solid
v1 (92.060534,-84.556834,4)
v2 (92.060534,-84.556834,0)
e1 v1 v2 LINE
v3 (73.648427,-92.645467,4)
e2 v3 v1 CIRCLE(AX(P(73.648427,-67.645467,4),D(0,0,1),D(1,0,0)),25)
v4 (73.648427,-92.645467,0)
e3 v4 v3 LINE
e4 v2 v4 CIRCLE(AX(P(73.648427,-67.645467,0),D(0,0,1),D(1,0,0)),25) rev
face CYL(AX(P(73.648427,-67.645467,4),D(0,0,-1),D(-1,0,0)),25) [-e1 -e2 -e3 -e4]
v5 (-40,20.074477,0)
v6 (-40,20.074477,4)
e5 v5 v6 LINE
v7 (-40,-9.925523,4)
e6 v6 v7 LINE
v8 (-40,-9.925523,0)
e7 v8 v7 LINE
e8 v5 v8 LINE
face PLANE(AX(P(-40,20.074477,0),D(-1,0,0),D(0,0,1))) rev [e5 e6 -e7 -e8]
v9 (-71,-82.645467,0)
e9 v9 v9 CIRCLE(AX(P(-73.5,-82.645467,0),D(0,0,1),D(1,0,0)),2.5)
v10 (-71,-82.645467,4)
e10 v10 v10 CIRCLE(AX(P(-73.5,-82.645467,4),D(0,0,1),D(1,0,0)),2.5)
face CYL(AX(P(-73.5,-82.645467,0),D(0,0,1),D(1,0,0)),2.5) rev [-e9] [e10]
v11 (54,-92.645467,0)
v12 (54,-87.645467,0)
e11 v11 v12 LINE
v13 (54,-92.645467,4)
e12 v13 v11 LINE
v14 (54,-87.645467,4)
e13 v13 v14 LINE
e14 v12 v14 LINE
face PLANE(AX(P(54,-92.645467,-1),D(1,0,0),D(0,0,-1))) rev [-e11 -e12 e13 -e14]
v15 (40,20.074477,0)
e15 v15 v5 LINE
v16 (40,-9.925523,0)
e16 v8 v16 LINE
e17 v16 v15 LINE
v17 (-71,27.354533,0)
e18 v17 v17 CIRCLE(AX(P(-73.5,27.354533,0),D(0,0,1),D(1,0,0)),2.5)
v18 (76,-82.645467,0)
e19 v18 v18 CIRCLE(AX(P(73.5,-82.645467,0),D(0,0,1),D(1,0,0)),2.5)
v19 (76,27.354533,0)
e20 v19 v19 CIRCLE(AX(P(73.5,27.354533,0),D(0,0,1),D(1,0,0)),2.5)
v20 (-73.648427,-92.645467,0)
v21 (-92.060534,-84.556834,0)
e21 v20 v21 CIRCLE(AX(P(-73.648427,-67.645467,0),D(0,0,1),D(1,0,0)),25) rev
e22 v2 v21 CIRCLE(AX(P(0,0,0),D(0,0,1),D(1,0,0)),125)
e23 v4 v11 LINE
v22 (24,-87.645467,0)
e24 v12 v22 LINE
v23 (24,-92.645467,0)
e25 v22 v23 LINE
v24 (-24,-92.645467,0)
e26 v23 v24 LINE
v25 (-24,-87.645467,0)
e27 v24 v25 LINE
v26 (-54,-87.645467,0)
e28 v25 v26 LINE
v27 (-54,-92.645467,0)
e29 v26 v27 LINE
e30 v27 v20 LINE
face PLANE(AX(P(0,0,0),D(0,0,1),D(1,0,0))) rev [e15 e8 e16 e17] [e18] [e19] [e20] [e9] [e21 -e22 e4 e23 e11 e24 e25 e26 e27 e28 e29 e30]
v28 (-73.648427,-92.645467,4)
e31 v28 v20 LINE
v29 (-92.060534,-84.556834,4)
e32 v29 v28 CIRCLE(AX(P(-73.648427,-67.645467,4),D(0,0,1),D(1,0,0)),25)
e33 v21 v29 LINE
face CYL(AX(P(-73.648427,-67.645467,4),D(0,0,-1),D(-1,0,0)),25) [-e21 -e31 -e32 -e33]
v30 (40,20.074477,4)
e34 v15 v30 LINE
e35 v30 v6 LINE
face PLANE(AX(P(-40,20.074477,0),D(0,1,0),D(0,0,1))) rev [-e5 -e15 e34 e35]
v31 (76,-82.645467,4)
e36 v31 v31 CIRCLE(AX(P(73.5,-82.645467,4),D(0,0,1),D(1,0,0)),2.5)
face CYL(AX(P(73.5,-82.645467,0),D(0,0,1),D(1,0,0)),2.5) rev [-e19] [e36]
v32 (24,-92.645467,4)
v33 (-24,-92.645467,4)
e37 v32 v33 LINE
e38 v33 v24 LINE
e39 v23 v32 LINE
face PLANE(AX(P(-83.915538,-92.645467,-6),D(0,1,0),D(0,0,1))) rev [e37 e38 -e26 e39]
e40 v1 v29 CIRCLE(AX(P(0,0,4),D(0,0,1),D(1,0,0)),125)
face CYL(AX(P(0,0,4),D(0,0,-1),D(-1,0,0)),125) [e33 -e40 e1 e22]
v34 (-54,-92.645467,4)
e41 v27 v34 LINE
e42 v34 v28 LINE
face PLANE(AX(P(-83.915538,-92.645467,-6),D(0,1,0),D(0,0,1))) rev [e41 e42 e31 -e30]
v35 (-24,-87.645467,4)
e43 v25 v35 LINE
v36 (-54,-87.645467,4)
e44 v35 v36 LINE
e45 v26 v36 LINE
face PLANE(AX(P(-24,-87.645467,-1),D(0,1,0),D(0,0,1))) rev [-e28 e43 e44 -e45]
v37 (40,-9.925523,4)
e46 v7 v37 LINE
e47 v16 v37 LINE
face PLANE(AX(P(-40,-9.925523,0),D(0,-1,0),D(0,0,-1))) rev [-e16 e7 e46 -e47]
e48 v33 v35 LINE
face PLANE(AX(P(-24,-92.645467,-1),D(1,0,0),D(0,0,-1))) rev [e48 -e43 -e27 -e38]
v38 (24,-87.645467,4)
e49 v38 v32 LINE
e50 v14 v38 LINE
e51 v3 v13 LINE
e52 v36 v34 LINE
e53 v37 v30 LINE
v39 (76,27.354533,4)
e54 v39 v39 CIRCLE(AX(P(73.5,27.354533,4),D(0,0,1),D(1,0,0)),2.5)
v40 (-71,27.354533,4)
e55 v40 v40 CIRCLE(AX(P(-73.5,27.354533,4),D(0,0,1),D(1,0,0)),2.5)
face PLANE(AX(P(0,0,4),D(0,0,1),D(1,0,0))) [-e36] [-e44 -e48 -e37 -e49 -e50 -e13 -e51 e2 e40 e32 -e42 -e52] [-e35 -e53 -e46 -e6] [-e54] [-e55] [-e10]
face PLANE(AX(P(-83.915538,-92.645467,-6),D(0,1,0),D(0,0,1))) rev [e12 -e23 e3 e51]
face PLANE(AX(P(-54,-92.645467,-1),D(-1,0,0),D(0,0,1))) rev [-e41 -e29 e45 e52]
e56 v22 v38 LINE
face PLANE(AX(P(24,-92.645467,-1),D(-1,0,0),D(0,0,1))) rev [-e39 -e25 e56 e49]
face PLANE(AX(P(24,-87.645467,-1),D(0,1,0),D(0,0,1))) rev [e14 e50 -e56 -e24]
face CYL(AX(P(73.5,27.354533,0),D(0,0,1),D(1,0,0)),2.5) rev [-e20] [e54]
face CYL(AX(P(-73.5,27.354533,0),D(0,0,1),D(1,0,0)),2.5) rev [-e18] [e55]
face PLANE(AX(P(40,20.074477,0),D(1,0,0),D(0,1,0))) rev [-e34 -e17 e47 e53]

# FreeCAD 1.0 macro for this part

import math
import FreeCAD as App
import Part
import Sketcher

V = App.Vector


def edges_at(feature, points):
    """Names of the edges that pass closest to the given points."""
    edges = feature.Shape.Edges
    near = lambda p: min(range(len(edges)), key=lambda i: edges[i].distToShape(Part.Vertex(*p))[0])
    return sorted({f"Edge{near(p) + 1}" for p in points})


def add_polygon(sketch, points):
    """Adds a closed chain of lines whose ends are joined by coincident constraints."""
    first, n = sketch.GeometryCount, len(points)
    for a, b in zip(points, points[1:] + points[:1]):
        sketch.addGeometry(Part.LineSegment(App.Vector(*a, 0), App.Vector(*b, 0)), False)
    for i in range(n):
        sketch.addConstraint(Sketcher.Constraint("Coincident", first + i, 2, first + (i + 1) % n, 1))

doc = App.newDocument("Part")
body = doc.addObject("PartDesign::Body", "Body")

# Sketch on XY plane
sketch1 = doc.addObject("Sketcher::SketchObject", "Sketch")
body.addObject(sketch1)
sketch1.AttachmentSupport = (doc.XY_Plane, [""])
sketch1.MapMode = "FlatFace"
sketch1.addGeometry(Part.Circle(V(0, 0, 0), V(0, 0, 1), 125), False)
sketch1.addConstraint([
    Sketcher.Constraint("Coincident", 0, 3, -1, 1),
    Sketcher.Constraint("Diameter", 0, 250.0),
])
pad1 = doc.addObject("PartDesign::Pad", "Pad")
body.addObject(pad1)
pad1.Profile = sketch1
pad1.Length = 4

# Sketch on XY plane
sketch2 = doc.addObject("Sketcher::SketchObject", "Sketch001")
body.addObject(sketch2)
sketch2.AttachmentSupport = (doc.XY_Plane, [""])
sketch2.MapMode = "FlatFace"
sketch2.AttachmentOffset = App.Placement(V(0, 0, -6), App.Rotation())
sketch2.addGeometry([
    Part.LineSegment(V(84, -93, 0), V(-84, -93, 0)),
    Part.ArcOfCircle(Part.Circle(V(0, 0, 0), V(0, 0, 1), 125), math.radians(-132), math.radians(-48)),
], False)
sketch2.addConstraint([
    Sketcher.Constraint("Coincident", 0, 1, 1, 2),
    Sketcher.Constraint("Coincident", 1, 1, 0, 2),
    Sketcher.Constraint("Horizontal", 0),
    Sketcher.Constraint("Coincident", 1, 3, -1, 1),
    Sketcher.Constraint("Radius", 1, 125.0),
    Sketcher.Constraint("DistanceX", 0, 2, 0, 1, 167.831075),
])
pocket1 = doc.addObject("PartDesign::Pocket", "Pocket")
body.addObject(pocket1)
pocket1.Profile = sketch2
pocket1.Length = 10
pocket1.Reversed = True
doc.recompute()

fillet = doc.addObject("PartDesign::Fillet", "Fillet")
body.addObject(fillet)
fillet.Base = (pocket1, edges_at(pocket1, [(83.916, -92.645, 2), (-83.916, -92.645, 2)]))
fillet.Radius = 25

# Sketch on XY plane
sketch3 = doc.addObject("Sketcher::SketchObject", "Sketch002")
body.addObject(sketch3)
sketch3.AttachmentSupport = (doc.XY_Plane, [""])
sketch3.MapMode = "FlatFace"
sketch3.AttachmentOffset = App.Placement(V(0, 0, 4), App.Rotation())
add_polygon(sketch3, [(24, -88), (24, -93), (54, -93), (54, -88)])  # lines 0-3
add_polygon(sketch3, [(-54, -88), (-54, -93), (-24, -93), (-24, -88)])  # lines 4-7
sketch3.addConstraint([
    Sketcher.Constraint("Vertical", 0),
    Sketcher.Constraint("Horizontal", 1),
    Sketcher.Constraint("Vertical", 2),
    Sketcher.Constraint("Horizontal", 3),
    Sketcher.Constraint("Vertical", 4),
    Sketcher.Constraint("Horizontal", 5),
    Sketcher.Constraint("Vertical", 6),
    Sketcher.Constraint("Horizontal", 7),
    Sketcher.Constraint("Symmetric", 1, 2, 4, 2, -2),
    Sketcher.Constraint("Symmetric", 3, 2, 6, 2, -2),
    Sketcher.Constraint("DistanceX", 1, 1, 1, 2, 30.0),
    Sketcher.Constraint("DistanceY", 0, 2, 0, 1, 5.0),
    Sketcher.Constraint("DistanceX", -1, 1, 0, 2, 24.0),
    Sketcher.Constraint("DistanceY", 0, 2, -1, 1, 92.645467),
])
pocket2 = doc.addObject("PartDesign::Pocket", "Pocket001")
body.addObject(pocket2)
pocket2.Profile = sketch3
pocket2.Length = 5

# Sketch on XY plane
sketch4 = doc.addObject("Sketcher::SketchObject", "Sketch003")
body.addObject(sketch4)
sketch4.AttachmentSupport = (doc.XY_Plane, [""])
sketch4.MapMode = "FlatFace"
sketch4.AttachmentOffset = App.Placement(V(0, 0, 4), App.Rotation())
sketch4.addGeometry([
    Part.Circle(V(73.5, -82.6, 0), V(0, 0, 1), 2.5),
    Part.Circle(V(73.5, 27.4, 0), V(0, 0, 1), 2.5),
    Part.Circle(V(-73.5, 27.4, 0), V(0, 0, 1), 2.5),
    Part.Circle(V(-73.5, -82.6, 0), V(0, 0, 1), 2.5),
], False)
sketch4.addConstraint([
    Sketcher.Constraint("Equal", 0, 1),
    Sketcher.Constraint("Equal", 1, 2),
    Sketcher.Constraint("Equal", 2, 3),
    Sketcher.Constraint("Symmetric", 1, 3, 2, 3, -2),
    Sketcher.Constraint("Symmetric", 0, 3, 3, 3, -2),
    Sketcher.Constraint("Vertical", 0, 3, 1, 3),
    Sketcher.Constraint("Diameter", 0, 5.0),
    Sketcher.Constraint("DistanceY", 0, 3, 1, 3, 110.0),
    Sketcher.Constraint("DistanceX", 2, 3, 1, 3, 147.0),
    Sketcher.Constraint("DistanceY", 0, 3, -1, 1, 82.645467),
])
pocket3 = doc.addObject("PartDesign::Pocket", "Pocket002")
body.addObject(pocket3)
pocket3.Profile = sketch4
pocket3.Type = "ThroughAll"

# Sketch on XY plane
sketch5 = doc.addObject("Sketcher::SketchObject", "Sketch004")
body.addObject(sketch5)
sketch5.AttachmentSupport = (doc.XY_Plane, [""])
sketch5.MapMode = "FlatFace"
sketch5.AttachmentOffset = App.Placement(V(0, 0, 4), App.Rotation())
add_polygon(sketch5, [(-40, 20), (-40, -10), (40, -10), (40, 20)])  # lines 0-3
sketch5.addConstraint([
    Sketcher.Constraint("Vertical", 0),
    Sketcher.Constraint("Horizontal", 1),
    Sketcher.Constraint("Vertical", 2),
    Sketcher.Constraint("Horizontal", 3),
    Sketcher.Constraint("DistanceX", 1, 1, 1, 2, 80.0),
    Sketcher.Constraint("DistanceY", 0, 2, 0, 1, 30.0),
    Sketcher.Constraint("DistanceX", 0, 2, -1, 1, 40.0),
    Sketcher.Constraint("DistanceY", 0, 2, -1, 1, 9.925523),
])
pocket4 = doc.addObject("PartDesign::Pocket", "Pocket003")
body.addObject(pocket4)
pocket4.Profile = sketch5
pocket4.Type = "ThroughAll"

doc.recompute()
